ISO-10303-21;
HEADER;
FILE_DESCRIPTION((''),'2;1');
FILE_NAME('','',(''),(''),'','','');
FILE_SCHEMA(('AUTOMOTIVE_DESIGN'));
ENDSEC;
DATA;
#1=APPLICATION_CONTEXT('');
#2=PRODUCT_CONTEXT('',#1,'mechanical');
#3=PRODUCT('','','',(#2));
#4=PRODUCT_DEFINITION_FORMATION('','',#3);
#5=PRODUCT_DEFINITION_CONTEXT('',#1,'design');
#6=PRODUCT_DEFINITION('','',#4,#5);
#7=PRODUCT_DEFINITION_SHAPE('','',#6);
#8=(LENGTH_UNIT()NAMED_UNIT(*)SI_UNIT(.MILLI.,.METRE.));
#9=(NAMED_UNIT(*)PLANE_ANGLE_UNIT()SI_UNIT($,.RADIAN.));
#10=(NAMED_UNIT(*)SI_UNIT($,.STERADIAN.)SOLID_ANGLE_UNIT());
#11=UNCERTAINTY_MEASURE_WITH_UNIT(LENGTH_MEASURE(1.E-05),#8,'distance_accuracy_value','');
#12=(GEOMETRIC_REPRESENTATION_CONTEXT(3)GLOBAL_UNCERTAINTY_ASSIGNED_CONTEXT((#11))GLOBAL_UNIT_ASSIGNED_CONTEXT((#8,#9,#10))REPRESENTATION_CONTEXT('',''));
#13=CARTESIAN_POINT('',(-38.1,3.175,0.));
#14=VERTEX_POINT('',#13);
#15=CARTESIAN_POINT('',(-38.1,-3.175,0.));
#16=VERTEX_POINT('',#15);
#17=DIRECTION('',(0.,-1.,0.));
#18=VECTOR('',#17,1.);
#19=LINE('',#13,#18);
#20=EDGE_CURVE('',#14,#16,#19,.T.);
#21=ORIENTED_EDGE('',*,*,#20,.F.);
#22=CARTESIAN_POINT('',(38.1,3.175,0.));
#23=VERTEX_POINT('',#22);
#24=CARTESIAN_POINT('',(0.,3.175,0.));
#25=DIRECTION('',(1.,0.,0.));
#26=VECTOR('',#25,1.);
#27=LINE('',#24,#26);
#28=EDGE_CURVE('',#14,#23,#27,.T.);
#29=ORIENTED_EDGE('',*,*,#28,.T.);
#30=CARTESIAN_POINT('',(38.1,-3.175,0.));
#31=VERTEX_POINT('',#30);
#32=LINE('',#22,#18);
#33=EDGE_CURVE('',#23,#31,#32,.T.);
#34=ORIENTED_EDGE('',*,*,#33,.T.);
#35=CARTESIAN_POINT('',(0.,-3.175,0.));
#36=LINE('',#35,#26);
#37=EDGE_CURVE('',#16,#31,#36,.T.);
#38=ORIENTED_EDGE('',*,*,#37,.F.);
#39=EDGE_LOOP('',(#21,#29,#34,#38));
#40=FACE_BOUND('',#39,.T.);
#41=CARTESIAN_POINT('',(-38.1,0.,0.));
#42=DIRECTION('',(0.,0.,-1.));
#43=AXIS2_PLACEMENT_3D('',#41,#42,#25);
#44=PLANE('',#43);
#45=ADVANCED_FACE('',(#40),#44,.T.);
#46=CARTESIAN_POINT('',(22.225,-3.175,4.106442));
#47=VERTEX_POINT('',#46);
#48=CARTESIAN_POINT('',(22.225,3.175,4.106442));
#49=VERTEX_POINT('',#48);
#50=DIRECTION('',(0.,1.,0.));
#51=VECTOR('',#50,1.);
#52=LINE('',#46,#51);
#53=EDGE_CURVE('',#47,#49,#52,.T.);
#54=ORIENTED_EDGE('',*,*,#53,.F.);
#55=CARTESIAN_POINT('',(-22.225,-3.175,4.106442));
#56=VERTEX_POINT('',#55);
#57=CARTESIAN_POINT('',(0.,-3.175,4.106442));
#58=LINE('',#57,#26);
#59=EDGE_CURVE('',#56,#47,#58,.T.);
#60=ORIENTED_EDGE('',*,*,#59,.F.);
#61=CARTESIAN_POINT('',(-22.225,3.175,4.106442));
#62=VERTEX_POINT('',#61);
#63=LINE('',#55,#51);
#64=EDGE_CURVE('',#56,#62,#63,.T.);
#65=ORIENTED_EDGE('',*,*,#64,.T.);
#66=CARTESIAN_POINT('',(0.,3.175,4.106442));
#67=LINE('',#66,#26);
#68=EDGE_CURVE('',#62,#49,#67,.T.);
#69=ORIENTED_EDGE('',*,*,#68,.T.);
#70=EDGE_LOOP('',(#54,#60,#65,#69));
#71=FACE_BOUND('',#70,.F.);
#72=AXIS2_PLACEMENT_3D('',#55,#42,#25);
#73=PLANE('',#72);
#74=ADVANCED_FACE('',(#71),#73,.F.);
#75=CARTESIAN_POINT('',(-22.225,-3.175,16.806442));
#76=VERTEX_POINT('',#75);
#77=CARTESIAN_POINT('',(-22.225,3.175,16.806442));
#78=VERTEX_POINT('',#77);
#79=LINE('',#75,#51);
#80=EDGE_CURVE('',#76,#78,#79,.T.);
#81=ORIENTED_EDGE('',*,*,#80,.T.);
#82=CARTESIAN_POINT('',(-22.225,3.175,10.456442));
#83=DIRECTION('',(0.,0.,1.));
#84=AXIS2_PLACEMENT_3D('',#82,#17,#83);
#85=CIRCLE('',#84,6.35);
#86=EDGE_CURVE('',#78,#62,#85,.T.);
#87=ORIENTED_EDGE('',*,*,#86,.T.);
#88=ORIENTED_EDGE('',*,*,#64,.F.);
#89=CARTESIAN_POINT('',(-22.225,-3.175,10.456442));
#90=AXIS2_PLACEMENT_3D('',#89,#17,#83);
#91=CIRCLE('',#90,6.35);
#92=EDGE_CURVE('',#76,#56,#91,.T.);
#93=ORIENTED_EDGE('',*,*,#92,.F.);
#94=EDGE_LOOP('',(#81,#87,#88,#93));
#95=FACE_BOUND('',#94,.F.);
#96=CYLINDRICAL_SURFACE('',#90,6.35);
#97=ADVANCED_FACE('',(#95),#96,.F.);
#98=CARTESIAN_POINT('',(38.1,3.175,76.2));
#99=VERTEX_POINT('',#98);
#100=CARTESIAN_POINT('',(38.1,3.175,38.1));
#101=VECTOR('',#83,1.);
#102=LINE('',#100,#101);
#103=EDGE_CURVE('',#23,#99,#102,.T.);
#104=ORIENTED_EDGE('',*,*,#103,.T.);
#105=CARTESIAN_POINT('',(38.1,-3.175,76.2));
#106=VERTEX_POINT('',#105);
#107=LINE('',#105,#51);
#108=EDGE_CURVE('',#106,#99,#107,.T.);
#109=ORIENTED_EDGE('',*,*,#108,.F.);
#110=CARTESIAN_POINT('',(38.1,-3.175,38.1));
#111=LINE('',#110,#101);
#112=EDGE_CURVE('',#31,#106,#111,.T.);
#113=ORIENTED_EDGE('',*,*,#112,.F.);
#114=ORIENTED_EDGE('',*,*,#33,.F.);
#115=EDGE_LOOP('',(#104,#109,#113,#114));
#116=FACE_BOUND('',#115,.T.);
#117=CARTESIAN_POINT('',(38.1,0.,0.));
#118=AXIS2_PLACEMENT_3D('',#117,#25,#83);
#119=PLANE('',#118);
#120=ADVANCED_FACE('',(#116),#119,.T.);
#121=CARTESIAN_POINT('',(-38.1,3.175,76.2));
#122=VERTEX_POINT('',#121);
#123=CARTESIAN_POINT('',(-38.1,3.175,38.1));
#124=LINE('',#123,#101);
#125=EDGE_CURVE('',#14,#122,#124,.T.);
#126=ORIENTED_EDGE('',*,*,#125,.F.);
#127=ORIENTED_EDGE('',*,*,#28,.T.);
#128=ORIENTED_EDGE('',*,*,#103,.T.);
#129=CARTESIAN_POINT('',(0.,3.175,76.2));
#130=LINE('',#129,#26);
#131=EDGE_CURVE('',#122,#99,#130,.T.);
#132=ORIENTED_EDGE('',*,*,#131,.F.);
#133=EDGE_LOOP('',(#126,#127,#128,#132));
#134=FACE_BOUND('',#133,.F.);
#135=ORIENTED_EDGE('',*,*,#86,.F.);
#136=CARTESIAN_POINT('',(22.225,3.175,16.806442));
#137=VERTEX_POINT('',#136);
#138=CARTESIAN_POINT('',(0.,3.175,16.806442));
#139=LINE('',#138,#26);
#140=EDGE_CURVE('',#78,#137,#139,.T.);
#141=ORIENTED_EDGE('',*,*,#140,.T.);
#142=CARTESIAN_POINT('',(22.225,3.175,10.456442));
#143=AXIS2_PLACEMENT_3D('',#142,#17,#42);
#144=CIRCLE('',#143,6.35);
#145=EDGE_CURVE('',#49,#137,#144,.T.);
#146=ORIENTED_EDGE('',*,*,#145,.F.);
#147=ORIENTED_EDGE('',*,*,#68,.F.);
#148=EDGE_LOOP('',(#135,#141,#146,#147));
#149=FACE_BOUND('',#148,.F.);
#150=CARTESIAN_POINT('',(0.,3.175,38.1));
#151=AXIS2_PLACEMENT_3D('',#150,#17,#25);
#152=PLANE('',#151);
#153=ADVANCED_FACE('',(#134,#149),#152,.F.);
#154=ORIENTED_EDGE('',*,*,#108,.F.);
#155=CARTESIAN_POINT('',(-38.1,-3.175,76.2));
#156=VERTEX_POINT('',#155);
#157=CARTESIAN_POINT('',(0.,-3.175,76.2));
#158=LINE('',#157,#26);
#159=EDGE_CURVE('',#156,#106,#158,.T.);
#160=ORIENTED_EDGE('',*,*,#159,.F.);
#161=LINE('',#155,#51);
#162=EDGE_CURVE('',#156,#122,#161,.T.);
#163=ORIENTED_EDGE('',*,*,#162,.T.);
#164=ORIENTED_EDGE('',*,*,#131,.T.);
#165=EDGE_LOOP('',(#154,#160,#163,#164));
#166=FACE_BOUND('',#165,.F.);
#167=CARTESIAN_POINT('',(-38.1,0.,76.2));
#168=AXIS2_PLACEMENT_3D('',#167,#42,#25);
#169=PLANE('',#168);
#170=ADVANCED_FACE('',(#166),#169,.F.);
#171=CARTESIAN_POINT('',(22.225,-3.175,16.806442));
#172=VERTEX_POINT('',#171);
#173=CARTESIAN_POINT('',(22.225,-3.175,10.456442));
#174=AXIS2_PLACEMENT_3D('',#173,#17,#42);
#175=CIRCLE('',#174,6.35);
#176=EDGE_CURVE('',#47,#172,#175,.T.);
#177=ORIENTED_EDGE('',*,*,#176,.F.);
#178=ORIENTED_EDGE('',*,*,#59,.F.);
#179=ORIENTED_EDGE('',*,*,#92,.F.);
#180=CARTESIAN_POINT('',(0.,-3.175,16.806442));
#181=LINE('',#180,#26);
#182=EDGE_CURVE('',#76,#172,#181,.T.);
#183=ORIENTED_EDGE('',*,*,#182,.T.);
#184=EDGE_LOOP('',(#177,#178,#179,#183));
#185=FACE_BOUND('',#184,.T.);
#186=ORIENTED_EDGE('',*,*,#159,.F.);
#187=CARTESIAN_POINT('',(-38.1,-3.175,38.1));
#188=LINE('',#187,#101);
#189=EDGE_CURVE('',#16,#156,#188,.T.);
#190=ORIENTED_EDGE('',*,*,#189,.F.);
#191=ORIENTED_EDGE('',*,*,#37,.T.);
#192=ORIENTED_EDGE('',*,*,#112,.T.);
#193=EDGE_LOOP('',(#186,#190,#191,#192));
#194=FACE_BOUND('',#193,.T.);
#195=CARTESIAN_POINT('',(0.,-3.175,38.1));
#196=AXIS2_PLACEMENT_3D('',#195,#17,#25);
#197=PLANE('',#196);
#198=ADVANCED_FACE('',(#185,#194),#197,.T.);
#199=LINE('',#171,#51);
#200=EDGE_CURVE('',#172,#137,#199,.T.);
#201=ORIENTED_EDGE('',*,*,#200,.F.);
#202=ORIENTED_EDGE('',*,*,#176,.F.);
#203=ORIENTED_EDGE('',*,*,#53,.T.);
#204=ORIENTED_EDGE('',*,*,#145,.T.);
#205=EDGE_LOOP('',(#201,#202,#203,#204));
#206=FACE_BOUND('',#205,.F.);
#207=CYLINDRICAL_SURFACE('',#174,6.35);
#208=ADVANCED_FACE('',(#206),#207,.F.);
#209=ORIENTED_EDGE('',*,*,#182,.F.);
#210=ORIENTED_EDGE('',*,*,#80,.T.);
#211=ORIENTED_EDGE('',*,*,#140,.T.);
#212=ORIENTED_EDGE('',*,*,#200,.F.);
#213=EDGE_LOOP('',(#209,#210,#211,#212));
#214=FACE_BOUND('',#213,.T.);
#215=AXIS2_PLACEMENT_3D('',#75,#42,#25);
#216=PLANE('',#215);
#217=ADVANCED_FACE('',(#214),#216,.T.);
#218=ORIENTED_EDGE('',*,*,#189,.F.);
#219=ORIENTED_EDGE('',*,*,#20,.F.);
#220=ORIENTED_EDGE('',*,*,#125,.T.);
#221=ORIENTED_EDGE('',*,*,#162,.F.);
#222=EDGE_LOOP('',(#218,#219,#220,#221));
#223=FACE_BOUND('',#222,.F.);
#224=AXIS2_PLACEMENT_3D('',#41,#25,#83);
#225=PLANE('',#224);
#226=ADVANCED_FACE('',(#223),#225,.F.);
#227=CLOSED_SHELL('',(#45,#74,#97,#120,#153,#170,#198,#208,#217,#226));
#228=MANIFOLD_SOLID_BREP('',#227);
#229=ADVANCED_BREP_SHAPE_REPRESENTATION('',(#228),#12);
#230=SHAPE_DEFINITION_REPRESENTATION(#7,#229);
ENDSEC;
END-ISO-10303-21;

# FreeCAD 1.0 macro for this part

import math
import FreeCAD as App
import Part
import Sketcher
from FreeCAD import Vector
Q = App.Units.Quantity

doc = App.newDocument("Part")
body = doc.addObject("PartDesign::Body", "Body")

# Sketch on XZ plane
sketch1 = body.newObject("Sketcher::SketchObject", "Sketch")
sketch1.AttachmentSupport = (doc.getObject("XZ_Plane"), [""])
sketch1.MapMode = "FlatFace"
sketch1.addGeometry([
    Part.LineSegment(Vector(-38, 76, 0), Vector(-38, 0, 0)),
    Part.LineSegment(Vector(-38, 0, 0), Vector(38, 0, 0)),
    Part.LineSegment(Vector(38, 0, 0), Vector(38, 76, 0)),
    Part.LineSegment(Vector(38, 76, 0), Vector(-38, 76, 0)),
], False)
sketch1.addConstraint([
    Sketcher.Constraint("Coincident", 0, 2, 1, 1),
    Sketcher.Constraint("Coincident", 1, 2, 2, 1),
    Sketcher.Constraint("Coincident", 2, 2, 3, 1),
    Sketcher.Constraint("Coincident", 3, 2, 0, 1),
    Sketcher.Constraint("Vertical", 0),
    Sketcher.Constraint("Horizontal", 1),
    Sketcher.Constraint("Vertical", 2),
    Sketcher.Constraint("Horizontal", 3),
    Sketcher.Constraint("Symmetric", 0, 2, 1, 2, -1, 1),
    Sketcher.Constraint("Equal", 3, 0),
    Sketcher.Constraint("DistanceX", 1, 1, 1, 2, Q("3 in")),
])
pad1 = body.newObject("PartDesign::Pad", "Pad")
pad1.Profile = sketch1
pad1.Length = Q("0.25 in")
pad1.Midplane = True

# Sketch on XZ plane
sketch2 = body.newObject("Sketcher::SketchObject", "Sketch001")
sketch2.AttachmentSupport = (doc.getObject("XZ_Plane"), [""])
sketch2.MapMode = "FlatFace"
sketch2.AttachmentOffset = App.Placement(Vector(0, 0, 0.125 * 25.4), App.Rotation())
sketch2.addGeometry([
    Part.ArcOfCircle(Part.Circle(Vector(-22, 10, 0), Vector(0, 0, 1), 6), math.radians(90), math.radians(270)),
    Part.LineSegment(Vector(-22, 4, 0), Vector(22, 4, 0)),
    Part.ArcOfCircle(Part.Circle(Vector(22, 10, 0), Vector(0, 0, 1), 6), math.radians(-90), math.radians(90)),
    Part.LineSegment(Vector(22, 17, 0), Vector(-22, 17, 0)),
], False)
sketch2.addConstraint([
    Sketcher.Constraint("Tangent", 0, 2, 1, 1),
    Sketcher.Constraint("Tangent", 1, 2, 2, 1),
    Sketcher.Constraint("Tangent", 2, 2, 3, 1),
    Sketcher.Constraint("Tangent", 3, 2, 0, 1),
    Sketcher.Constraint("Horizontal", 1),
    Sketcher.Constraint("Horizontal", 3),
    Sketcher.Constraint("Radius", 0, Q("0.25 in")),
    Sketcher.Constraint("DistanceX", 1, 1, 1, 2, Q("1.75 in")),
    Sketcher.Constraint("DistanceX", 0, 3, -1, 1, Q("0.875 in")),
    Sketcher.Constraint("DistanceY", -1, 1, 0, 3, Q("10.456442 mm")),
])
pocket1 = body.newObject("PartDesign::Pocket", "Pocket")
pocket1.Profile = sketch2
pocket1.Length = Q("0.25 in")

doc.recompute()
